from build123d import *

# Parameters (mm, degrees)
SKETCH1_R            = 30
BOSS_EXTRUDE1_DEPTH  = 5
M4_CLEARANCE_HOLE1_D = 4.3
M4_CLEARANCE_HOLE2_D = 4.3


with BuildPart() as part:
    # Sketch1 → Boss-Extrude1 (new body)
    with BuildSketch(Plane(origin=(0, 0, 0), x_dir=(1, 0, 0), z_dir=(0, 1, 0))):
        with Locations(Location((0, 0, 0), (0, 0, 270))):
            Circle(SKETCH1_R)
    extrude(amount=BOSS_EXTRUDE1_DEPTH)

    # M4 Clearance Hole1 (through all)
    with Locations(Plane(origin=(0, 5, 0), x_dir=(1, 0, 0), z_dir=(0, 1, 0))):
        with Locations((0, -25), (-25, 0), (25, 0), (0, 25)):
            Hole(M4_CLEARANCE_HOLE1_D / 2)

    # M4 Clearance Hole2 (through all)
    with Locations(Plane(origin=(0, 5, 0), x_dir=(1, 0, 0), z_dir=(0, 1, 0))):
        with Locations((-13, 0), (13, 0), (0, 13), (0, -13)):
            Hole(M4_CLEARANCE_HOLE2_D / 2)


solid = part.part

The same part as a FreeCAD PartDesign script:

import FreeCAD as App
import Part
import Sketcher
Q = App.Units.Quantity

doc = App.newDocument("Part")
body = doc.addObject("PartDesign::Body", "Body")

# Sketch on XZ plane
sketch1 = doc.addObject("Sketcher::SketchObject", "Sketch")
body.addObject(sketch1)
sketch1.AttachmentSupport = (doc.XZ_Plane, [""])
sketch1.MapMode = "FlatFace"
sketch1.addGeometry(Part.Circle(App.Vector(0, 0, 0), App.Vector(0, 0, 1), 30), False)
sketch1.addConstraint([
    Sketcher.Constraint("Coincident", 0, 3, -1, 1),
    Sketcher.Constraint("Diameter", 0, Q("60 mm")),
])
pad1 = doc.addObject("PartDesign::Pad", "Pad")
body.addObject(pad1)
pad1.Profile = sketch1
pad1.Length = 5
pad1.Reversed = True

# Sketch on XZ plane
sketch2 = doc.addObject("Sketcher::SketchObject", "Sketch001")
body.addObject(sketch2)
sketch2.AttachmentSupport = (doc.XZ_Plane, [""])
sketch2.MapMode = "FlatFace"
sketch2.AttachmentOffset = App.Placement(App.Vector(0, 0, -5), App.Rotation())
sketch2.addGeometry([
    Part.Circle(App.Vector(0, 25, 0), App.Vector(0, 0, 1), 2.15),
    Part.Circle(App.Vector(-25, 0, 0), App.Vector(0, 0, 1), 2.15),
    Part.Circle(App.Vector(25, 0, 0), App.Vector(0, 0, 1), 2.15),
    Part.Circle(App.Vector(0, -25, 0), App.Vector(0, 0, 1), 2.15),
], False)
sketch2.addConstraint([
    Sketcher.Constraint("Equal", 0, 1),
    Sketcher.Constraint("Equal", 1, 2),
    Sketcher.Constraint("Equal", 2, 3),
    Sketcher.Constraint("Symmetric", 1, 3, 2, 3, -1, 1),
    Sketcher.Constraint("Symmetric", 0, 3, 3, 3, -1, 1),
    Sketcher.Constraint("PointOnObject", 0, 3, -2),
    Sketcher.Constraint("PointOnObject", 1, 3, -1),
    Sketcher.Constraint("Diameter", 0, Q("4.3 mm")),
    Sketcher.Constraint("DistanceY", -1, 1, 0, 3, Q("25 mm")),
    Sketcher.Constraint("DistanceX", 1, 3, -1, 1, Q("25 mm")),
])
doc.recompute()
hole = doc.addObject("PartDesign::Hole", "Hole")
body.addObject(hole)
hole.Profile = sketch2
hole.ThreadType = "None"
hole.Diameter = 4.3
hole.DepthType = "ThroughAll"
hole.Reversed = True

# Sketch on XZ plane
sketch3 = doc.addObject("Sketcher::SketchObject", "Sketch002")
body.addObject(sketch3)
sketch3.AttachmentSupport = (doc.XZ_Plane, [""])
sketch3.MapMode = "FlatFace"
sketch3.AttachmentOffset = App.Placement(App.Vector(0, 0, -5), App.Rotation())
sketch3.addGeometry([
    Part.Circle(App.Vector(-13, 0, 0), App.Vector(0, 0, 1), 2.15),
    Part.Circle(App.Vector(13, 0, 0), App.Vector(0, 0, 1), 2.15),
    Part.Circle(App.Vector(0, -13, 0), App.Vector(0, 0, 1), 2.15),
    Part.Circle(App.Vector(0, 13, 0), App.Vector(0, 0, 1), 2.15),
], False)
sketch3.addConstraint([
    Sketcher.Constraint("Equal", 0, 1),
    Sketcher.Constraint("Equal", 1, 2),
    Sketcher.Constraint("Equal", 2, 3),
    Sketcher.Constraint("Symmetric", 0, 3, 1, 3, -1, 1),
    Sketcher.Constraint("Symmetric", 2, 3, 3, 3, -1, 1),
    Sketcher.Constraint("PointOnObject", 0, 3, -1),
    Sketcher.Constraint("PointOnObject", 2, 3, -2),
    Sketcher.Constraint("Diameter", 0, Q("4.3 mm")),
    Sketcher.Constraint("DistanceX", 0, 3, -1, 1, Q("13 mm")),
    Sketcher.Constraint("DistanceY", 2, 3, -1, 1, Q("13 mm")),
])
doc.recompute()
hole2 = doc.addObject("PartDesign::Hole", "Hole001")
body.addObject(hole2)
hole2.Profile = sketch3
hole2.ThreadType = "None"
hole2.Diameter = 4.3
hole2.DepthType = "ThroughAll"
hole2.Reversed = True

doc.recompute()
